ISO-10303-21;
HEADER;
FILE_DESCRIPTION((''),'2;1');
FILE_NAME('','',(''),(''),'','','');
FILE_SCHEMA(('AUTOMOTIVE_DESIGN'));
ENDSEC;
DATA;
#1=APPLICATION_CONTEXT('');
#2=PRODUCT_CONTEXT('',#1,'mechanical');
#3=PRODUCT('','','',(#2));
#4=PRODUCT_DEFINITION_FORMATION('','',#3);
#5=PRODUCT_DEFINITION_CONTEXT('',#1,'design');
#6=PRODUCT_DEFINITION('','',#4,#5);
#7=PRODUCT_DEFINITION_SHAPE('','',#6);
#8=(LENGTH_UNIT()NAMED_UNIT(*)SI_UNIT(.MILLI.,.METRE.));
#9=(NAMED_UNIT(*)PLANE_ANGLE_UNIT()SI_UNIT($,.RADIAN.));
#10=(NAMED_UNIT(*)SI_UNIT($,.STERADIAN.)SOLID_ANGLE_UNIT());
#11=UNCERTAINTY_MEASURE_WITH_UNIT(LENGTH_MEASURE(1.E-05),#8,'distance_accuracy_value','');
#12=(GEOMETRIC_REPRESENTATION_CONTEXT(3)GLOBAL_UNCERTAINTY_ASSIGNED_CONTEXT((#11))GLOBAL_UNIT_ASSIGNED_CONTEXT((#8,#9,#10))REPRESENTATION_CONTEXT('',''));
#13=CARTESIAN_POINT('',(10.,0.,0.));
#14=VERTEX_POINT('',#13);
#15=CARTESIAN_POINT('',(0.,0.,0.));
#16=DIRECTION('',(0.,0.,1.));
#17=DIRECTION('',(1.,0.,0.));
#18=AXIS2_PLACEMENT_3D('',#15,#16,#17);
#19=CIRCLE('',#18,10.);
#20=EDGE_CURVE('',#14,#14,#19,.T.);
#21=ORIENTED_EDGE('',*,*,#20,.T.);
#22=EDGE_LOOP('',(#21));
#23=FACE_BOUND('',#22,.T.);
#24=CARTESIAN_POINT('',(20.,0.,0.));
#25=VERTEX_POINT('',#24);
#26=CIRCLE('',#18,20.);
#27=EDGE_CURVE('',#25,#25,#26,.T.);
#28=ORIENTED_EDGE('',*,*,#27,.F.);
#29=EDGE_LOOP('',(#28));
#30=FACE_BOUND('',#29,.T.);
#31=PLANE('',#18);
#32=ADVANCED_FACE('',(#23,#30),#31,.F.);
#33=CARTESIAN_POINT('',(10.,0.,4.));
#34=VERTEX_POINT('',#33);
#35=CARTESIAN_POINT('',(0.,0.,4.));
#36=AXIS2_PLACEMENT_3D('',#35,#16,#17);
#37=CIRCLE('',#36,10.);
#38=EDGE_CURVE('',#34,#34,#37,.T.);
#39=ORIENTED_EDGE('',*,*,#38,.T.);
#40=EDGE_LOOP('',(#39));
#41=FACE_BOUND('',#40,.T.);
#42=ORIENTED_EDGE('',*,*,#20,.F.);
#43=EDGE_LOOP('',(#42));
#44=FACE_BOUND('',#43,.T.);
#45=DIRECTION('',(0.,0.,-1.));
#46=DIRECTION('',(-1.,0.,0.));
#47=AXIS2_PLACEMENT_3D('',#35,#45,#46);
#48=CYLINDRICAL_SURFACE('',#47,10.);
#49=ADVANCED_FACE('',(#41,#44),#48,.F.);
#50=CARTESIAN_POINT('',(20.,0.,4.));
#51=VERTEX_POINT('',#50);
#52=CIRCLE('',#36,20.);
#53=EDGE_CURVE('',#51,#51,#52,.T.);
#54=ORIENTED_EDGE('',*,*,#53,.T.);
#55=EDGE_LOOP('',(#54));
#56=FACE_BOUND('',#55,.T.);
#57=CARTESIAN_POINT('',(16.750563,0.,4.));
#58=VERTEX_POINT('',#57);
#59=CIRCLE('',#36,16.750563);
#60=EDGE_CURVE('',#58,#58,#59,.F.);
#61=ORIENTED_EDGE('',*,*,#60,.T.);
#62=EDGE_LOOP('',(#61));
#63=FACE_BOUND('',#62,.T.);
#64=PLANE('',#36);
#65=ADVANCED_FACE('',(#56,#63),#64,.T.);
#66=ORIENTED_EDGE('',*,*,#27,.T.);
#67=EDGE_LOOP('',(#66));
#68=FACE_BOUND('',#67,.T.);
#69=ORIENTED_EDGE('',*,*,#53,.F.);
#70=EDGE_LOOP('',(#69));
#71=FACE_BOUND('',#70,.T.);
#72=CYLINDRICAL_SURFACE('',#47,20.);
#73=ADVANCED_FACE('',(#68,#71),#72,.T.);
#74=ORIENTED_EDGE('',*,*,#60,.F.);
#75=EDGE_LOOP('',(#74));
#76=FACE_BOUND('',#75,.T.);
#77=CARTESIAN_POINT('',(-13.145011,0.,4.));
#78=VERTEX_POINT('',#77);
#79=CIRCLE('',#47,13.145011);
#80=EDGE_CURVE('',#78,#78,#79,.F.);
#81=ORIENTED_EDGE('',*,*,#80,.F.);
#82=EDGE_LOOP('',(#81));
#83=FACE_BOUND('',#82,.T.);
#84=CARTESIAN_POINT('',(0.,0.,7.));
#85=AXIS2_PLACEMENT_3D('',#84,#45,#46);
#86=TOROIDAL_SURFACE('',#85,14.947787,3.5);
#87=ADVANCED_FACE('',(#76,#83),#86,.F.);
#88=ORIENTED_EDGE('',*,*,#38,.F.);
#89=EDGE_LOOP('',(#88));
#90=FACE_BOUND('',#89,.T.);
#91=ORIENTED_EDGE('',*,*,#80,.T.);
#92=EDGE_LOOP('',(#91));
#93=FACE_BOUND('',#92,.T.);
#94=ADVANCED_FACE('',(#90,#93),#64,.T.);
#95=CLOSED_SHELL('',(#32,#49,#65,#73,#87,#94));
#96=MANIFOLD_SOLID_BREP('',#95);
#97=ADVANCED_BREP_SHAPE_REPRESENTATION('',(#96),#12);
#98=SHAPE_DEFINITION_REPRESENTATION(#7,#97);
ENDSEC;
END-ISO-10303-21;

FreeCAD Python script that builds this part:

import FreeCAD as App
import Part
import Sketcher
from FreeCAD import Vector

doc = App.newDocument("Part")
params = doc.addObject("Spreadsheet::Sheet", "Params")
for row, (alias, value) in enumerate([
    ("sketch1_diameter", "40 mm"),
    ("sketch1_diameter2", "20 mm"),
    ("pad1_length", "4 mm"),
    ("sketch2_diameter", "7 mm"),
    ("sketch3_diameter", "30 mm"),
], start=1):
    params.set(f"A{row}", alias)
    params.set(f"B{row}", "=" + value)
    params.setAlias(f"B{row}", alias)

body = doc.addObject("PartDesign::Body", "Body")

# Sketch on XY plane
sketch1 = body.newObject("Sketcher::SketchObject", "Sketch")
sketch1.AttachmentSupport = (doc.getObject("XY_Plane"), [""])
sketch1.MapMode = "FlatFace"
sketch1.addGeometry(Part.Circle(Vector(0, 0, 0), Vector(0, 0, 1), 20), False)
sketch1.addGeometry(Part.Circle(Vector(0, 0, 0), Vector(0, 0, 1), 10), False)
sketch1.addConstraint(Sketcher.Constraint("Coincident", 0, 3, -1, 1))
sketch1.addConstraint(Sketcher.Constraint("Coincident", 1, 3, -1, 1))
sketch1.addConstraint(Sketcher.Constraint("Diameter", 0, 40.0))
sketch1.addConstraint(Sketcher.Constraint("Diameter", 1, 20.0))
sketch1.setExpression("Constraints[2]", "Params.sketch1_diameter")
sketch1.setExpression("Constraints[3]", "Params.sketch1_diameter2")
pad1 = body.newObject("PartDesign::Pad", "Pad")
pad1.Profile = sketch1
pad1.setExpression("Length", "Params.pad1_length")

# Sketch on XZ plane
sketch2 = body.newObject("Sketcher::SketchObject", "Sketch001")
sketch2.AttachmentSupport = (doc.getObject("XZ_Plane"), [""])
sketch2.MapMode = "FlatFace"
sketch2.addGeometry(Part.Circle(Vector(14.9, 7, 0), Vector(0, 0, 1), 3.5), False)
sketch2.addConstraint(Sketcher.Constraint("Diameter", 0, 7.0))
sketch2.addConstraint(Sketcher.Constraint("DistanceY", -1, 1, 0, 3, 7.0))
sketch2.addConstraint(Sketcher.Constraint("DistanceX", -1, 1, 0, 3, 14.947787))
sketch2.setExpression("Constraints[0]", "Params.sketch2_diameter")

# Sketch on XY plane
sketch3 = body.newObject("Sketcher::SketchObject", "Sketch002")
sketch3.AttachmentSupport = (doc.getObject("XY_Plane"), [""])
sketch3.MapMode = "FlatFace"
sketch3.AttachmentOffset = App.Placement(Vector(0, 0, 4), App.Rotation())
sketch3.addGeometry(Part.Circle(Vector(0, 0, 0), Vector(0, 0, 1), 15), False)
sketch3.addConstraint(Sketcher.Constraint("Coincident", 0, 3, -1, 1))
sketch3.addConstraint(Sketcher.Constraint("Diameter", 0, 30.0))
sketch3.setExpression("Constraints[1]", "Params.sketch3_diameter")
doc.recompute()

subtractivepipe = body.newObject("PartDesign::SubtractivePipe", "SubtractivePipe")
subtractivepipe.Profile = sketch2
subtractivepipe.Spine = (sketch3, ["Edge1"])

doc.recompute()
